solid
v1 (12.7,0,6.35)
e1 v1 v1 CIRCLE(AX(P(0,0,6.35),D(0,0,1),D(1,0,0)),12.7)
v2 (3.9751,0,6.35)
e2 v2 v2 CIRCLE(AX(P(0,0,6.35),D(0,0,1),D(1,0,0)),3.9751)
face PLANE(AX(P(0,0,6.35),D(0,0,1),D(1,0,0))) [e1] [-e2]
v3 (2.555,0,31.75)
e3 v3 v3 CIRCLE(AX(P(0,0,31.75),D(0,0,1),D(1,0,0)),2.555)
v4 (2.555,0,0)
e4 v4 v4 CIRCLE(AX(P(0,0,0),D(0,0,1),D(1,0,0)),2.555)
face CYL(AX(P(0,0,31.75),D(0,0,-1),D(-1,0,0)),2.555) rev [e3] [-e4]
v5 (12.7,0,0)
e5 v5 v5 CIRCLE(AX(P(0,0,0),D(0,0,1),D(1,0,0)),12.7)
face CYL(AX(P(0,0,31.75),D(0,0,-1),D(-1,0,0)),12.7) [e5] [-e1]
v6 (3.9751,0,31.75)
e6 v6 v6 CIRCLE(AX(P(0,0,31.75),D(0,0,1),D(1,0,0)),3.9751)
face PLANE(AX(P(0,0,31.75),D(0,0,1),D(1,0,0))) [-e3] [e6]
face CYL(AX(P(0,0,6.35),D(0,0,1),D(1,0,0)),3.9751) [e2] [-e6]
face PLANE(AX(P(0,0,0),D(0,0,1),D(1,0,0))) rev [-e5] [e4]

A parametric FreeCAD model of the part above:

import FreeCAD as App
import Part
import Sketcher

V = App.Vector
Q = App.Units.Quantity

doc = App.newDocument("Part")
body = doc.addObject("PartDesign::Body", "Body")

sketch1 = doc.addObject("Sketcher::SketchObject", "Sketch")
body.addObject(sketch1)
sketch1.AttachmentSupport = (doc.XY_Plane, [""])
sketch1.MapMode = "FlatFace"
sketch1.addGeometry(Part.Circle(V(0, 0, 0), V(0, 0, 1), 12.7), False)
sketch1.addGeometry(Part.Circle(V(0, 0, 0), V(0, 0, 1), 2.6), False)
sketch1.addConstraint(Sketcher.Constraint("Coincident", 0, 3, -1, 1))
sketch1.addConstraint(Sketcher.Constraint("Coincident", 1, 3, -1, 1))
sketch1.addConstraint(Sketcher.Constraint("Diameter", 0, Q("1 in")))
sketch1.addConstraint(Sketcher.Constraint("Diameter", 1, Q("5.11 mm")))
pad1 = doc.addObject("PartDesign::Pad", "Pad")
body.addObject(pad1)
pad1.Profile = sketch1
pad1.Length = Q("1.25 in")

sketch2 = doc.addObject("Sketcher::SketchObject", "Sketch001")
body.addObject(sketch2)
sketch2.AttachmentSupport = (doc.XY_Plane, [""])
sketch2.MapMode = "FlatFace"
sketch2.AttachmentOffset = App.Placement(V(0, 0, 1.25 * 25.4), App.Rotation())
sketch2.addGeometry(Part.Circle(V(0, 0, 0), V(0, 0, 1), 12.7), False)
sketch2.addGeometry(Part.Circle(V(0, 0, 0), V(0, 0, 1), 4), False)
sketch2.addConstraint(Sketcher.Constraint("Coincident", 0, 3, -1, 1))
sketch2.addConstraint(Sketcher.Constraint("Coincident", 1, 3, -1, 1))
sketch2.addConstraint(Sketcher.Constraint("Diameter", 0, Q("1 in")))
sketch2.addConstraint(Sketcher.Constraint("Diameter", 1, Q("0.313 in")))
pocket1 = doc.addObject("PartDesign::Pocket", "Pocket")
body.addObject(pocket1)
pocket1.Profile = sketch2
pocket1.Length = Q("1 in")

doc.recompute()
